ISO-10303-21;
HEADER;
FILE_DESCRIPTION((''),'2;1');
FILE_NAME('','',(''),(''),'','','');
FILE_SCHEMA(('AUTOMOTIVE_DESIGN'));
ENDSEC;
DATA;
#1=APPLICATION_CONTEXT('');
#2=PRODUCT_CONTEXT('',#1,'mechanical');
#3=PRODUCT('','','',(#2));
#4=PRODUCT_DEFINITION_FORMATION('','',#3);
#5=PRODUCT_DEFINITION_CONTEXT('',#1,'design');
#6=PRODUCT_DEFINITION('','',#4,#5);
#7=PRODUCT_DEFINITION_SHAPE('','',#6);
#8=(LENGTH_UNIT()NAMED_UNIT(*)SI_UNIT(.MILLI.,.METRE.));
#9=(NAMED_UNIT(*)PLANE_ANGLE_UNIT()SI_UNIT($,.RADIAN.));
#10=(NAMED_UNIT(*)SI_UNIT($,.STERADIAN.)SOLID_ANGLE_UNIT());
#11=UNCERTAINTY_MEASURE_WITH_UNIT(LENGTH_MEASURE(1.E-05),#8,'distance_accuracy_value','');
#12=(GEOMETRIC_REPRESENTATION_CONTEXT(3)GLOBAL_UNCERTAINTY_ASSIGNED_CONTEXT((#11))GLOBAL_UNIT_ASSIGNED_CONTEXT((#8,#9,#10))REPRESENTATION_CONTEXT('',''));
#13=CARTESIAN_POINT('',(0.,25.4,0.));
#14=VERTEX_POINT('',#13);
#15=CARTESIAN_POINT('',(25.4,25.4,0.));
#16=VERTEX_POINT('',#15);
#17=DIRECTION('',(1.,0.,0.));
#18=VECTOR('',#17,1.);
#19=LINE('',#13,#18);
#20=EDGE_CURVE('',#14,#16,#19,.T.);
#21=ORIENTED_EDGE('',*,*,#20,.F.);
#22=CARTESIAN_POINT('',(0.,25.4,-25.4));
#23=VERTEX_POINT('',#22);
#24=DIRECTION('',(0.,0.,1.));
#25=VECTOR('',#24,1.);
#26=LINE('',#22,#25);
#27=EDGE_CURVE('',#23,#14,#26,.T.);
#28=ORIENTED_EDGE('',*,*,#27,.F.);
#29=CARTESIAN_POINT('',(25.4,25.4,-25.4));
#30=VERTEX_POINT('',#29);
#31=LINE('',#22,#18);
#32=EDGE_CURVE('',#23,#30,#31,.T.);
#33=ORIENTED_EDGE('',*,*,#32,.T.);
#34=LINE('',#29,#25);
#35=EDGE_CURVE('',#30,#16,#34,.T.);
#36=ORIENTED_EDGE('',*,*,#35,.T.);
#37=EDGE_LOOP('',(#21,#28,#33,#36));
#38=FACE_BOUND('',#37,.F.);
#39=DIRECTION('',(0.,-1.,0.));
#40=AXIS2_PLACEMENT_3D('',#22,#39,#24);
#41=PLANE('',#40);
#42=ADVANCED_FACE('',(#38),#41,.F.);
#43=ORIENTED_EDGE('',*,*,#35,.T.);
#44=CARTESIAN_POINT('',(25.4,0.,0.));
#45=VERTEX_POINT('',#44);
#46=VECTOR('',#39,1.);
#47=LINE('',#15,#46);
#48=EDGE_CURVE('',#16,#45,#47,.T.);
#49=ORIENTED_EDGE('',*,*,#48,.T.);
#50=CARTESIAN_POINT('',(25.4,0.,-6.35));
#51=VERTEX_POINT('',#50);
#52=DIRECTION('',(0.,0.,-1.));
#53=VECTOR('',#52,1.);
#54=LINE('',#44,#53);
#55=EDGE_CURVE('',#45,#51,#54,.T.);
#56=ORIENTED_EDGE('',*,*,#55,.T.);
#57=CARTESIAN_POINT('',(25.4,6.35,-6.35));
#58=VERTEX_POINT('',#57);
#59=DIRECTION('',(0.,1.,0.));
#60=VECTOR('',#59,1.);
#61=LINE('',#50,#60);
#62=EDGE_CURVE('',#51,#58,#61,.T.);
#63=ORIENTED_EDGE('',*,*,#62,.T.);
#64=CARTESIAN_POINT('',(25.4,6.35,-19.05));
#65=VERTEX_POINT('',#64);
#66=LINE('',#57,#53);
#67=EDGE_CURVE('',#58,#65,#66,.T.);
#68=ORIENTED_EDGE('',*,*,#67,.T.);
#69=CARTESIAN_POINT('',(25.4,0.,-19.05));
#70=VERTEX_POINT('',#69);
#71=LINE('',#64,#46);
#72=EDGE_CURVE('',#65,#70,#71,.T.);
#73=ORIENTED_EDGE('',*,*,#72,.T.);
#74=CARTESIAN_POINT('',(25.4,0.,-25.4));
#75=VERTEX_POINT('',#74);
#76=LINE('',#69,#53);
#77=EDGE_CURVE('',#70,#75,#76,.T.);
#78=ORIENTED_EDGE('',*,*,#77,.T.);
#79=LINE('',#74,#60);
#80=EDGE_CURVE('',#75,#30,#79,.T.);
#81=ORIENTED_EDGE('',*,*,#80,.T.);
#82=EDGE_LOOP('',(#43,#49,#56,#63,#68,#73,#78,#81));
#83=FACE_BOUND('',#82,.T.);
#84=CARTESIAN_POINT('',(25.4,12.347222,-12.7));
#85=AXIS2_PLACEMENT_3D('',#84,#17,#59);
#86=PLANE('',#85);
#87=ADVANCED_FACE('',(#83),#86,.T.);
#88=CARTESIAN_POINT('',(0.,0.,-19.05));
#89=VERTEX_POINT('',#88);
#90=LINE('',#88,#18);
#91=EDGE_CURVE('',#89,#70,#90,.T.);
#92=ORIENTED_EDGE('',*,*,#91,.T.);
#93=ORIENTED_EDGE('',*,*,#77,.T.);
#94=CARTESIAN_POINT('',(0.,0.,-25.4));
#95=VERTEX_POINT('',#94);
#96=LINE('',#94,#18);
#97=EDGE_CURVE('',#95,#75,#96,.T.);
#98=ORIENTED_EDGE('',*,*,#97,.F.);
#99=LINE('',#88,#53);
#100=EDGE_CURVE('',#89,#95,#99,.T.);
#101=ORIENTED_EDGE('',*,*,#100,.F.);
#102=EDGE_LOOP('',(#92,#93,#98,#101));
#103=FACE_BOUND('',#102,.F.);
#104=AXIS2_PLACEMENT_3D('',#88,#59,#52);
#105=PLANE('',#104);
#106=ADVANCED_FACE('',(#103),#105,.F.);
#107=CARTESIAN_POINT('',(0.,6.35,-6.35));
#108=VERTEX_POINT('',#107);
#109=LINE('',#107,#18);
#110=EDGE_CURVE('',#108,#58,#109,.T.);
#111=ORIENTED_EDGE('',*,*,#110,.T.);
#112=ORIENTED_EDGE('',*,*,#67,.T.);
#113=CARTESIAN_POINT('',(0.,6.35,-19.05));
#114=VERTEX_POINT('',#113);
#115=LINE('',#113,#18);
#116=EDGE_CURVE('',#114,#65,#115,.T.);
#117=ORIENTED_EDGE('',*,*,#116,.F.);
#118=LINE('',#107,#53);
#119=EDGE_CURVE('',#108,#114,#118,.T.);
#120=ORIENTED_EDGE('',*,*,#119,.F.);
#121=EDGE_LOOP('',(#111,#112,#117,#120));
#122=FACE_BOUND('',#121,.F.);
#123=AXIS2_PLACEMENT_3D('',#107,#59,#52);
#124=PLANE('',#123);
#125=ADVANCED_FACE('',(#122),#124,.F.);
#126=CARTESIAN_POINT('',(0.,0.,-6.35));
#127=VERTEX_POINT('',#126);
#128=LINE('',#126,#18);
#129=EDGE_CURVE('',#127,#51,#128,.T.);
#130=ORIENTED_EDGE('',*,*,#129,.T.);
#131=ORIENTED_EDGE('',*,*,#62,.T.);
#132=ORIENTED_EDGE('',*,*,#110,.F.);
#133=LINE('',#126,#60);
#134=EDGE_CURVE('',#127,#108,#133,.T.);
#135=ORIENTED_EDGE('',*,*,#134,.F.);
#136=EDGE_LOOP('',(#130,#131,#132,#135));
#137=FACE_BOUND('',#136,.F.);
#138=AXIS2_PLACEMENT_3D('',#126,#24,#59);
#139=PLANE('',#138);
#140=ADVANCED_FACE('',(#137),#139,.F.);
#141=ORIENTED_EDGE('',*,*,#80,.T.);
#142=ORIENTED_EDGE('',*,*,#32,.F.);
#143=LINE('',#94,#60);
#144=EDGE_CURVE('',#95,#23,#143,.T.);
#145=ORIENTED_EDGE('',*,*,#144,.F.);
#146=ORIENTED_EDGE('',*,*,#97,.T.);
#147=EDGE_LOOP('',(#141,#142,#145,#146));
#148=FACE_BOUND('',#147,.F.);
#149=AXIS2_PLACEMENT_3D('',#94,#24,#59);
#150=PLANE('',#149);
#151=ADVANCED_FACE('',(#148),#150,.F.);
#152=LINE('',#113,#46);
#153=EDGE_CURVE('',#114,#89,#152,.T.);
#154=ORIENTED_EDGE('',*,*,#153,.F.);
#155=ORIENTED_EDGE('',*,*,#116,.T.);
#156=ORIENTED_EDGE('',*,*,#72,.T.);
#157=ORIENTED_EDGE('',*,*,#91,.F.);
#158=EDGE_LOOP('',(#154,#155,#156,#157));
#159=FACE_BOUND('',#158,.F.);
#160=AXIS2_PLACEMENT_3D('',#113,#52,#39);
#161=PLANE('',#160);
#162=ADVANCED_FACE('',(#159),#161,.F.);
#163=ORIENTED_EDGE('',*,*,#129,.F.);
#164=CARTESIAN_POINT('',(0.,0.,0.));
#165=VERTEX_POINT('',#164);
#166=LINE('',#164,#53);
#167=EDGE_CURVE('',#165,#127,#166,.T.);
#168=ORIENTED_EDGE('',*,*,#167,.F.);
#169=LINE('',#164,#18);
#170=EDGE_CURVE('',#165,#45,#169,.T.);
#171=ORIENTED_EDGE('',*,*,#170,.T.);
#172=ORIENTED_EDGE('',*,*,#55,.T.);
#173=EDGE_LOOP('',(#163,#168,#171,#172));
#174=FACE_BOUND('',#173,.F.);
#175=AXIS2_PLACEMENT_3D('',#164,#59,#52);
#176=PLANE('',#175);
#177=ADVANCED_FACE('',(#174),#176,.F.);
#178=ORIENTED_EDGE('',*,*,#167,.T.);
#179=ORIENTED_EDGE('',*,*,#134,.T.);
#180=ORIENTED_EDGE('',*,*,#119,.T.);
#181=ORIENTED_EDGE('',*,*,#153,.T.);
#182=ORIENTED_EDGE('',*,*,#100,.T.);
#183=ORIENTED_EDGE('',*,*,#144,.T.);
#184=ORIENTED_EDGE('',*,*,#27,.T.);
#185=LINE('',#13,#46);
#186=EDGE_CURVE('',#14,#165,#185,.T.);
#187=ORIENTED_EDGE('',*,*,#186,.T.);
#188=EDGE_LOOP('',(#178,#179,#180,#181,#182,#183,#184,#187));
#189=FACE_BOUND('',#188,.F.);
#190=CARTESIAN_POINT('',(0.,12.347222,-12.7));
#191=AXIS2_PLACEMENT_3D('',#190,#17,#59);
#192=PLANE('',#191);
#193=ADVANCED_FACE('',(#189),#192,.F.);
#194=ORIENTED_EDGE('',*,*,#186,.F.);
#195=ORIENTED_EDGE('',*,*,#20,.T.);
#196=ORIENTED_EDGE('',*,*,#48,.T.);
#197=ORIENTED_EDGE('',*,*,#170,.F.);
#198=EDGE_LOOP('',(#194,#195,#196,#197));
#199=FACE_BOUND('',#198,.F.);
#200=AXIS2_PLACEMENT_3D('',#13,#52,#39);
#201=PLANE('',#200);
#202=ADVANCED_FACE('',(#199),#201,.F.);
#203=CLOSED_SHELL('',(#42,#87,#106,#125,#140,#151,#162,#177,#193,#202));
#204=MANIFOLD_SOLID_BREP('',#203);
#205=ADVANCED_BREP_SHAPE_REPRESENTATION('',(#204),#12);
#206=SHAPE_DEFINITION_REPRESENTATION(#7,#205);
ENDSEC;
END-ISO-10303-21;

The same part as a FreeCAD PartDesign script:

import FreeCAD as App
import Part
import Sketcher
Q = App.Units.Quantity

doc = App.newDocument("Part")
params = doc.addObject("Spreadsheet::Sheet", "Params")
for row, (alias, value) in enumerate([
    ("sketch1_width", "1 in"),
    ("sketch1_height", "0.5 in"),
    ("pad1_length", "1 in"),
], start=1):
    params.set(f"A{row}", alias)
    params.set(f"B{row}", "=" + value)
    params.setAlias(f"B{row}", alias)

body = doc.addObject("PartDesign::Body", "Body")

sketch1 = body.newObject("Sketcher::SketchObject", "Sketch")
sketch1.AttachmentSupport = (doc.getObject("YZ_Plane"), [""])
sketch1.MapMode = "FlatFace"
sketch1.addGeometry(Part.LineSegment(App.Vector(25, 0, 0), App.Vector(0, 0, 0)), False)
sketch1.addGeometry(Part.LineSegment(App.Vector(0, 0, 0), App.Vector(0, -6, 0)), False)
sketch1.addGeometry(Part.LineSegment(App.Vector(0, -6, 0), App.Vector(6, -6, 0)), False)
sketch1.addGeometry(Part.LineSegment(App.Vector(6, -6, 0), App.Vector(6, -19, 0)), False)
sketch1.addGeometry(Part.LineSegment(App.Vector(6, -19, 0), App.Vector(0, -19, 0)), False)
sketch1.addGeometry(Part.LineSegment(App.Vector(0, -19, 0), App.Vector(0, -25, 0)), False)
sketch1.addGeometry(Part.LineSegment(App.Vector(0, -25, 0), App.Vector(25, -25, 0)), False)
sketch1.addGeometry(Part.LineSegment(App.Vector(25, -25, 0), App.Vector(25, 0, 0)), False)
sketch1.addConstraint(Sketcher.Constraint("Coincident", 0, 2, 1, 1))
sketch1.addConstraint(Sketcher.Constraint("Coincident", 1, 2, 2, 1))
sketch1.addConstraint(Sketcher.Constraint("Coincident", 2, 2, 3, 1))
sketch1.addConstraint(Sketcher.Constraint("Coincident", 3, 2, 4, 1))
sketch1.addConstraint(Sketcher.Constraint("Coincident", 4, 2, 5, 1))
sketch1.addConstraint(Sketcher.Constraint("Coincident", 5, 2, 6, 1))
sketch1.addConstraint(Sketcher.Constraint("Coincident", 6, 2, 7, 1))
sketch1.addConstraint(Sketcher.Constraint("Coincident", 7, 2, 0, 1))
sketch1.addConstraint(Sketcher.Constraint("Horizontal", 0))
sketch1.addConstraint(Sketcher.Constraint("Vertical", 1))
sketch1.addConstraint(Sketcher.Constraint("Horizontal", 2))
sketch1.addConstraint(Sketcher.Constraint("Vertical", 3))
sketch1.addConstraint(Sketcher.Constraint("Horizontal", 4))
sketch1.addConstraint(Sketcher.Constraint("Vertical", 5))
sketch1.addConstraint(Sketcher.Constraint("Horizontal", 6))
sketch1.addConstraint(Sketcher.Constraint("Vertical", 7))
sketch1.addConstraint(Sketcher.Constraint("Coincident", 0, 2, -1, 1))
sketch1.addConstraint(Sketcher.Constraint("PointOnObject", 4, 2, -2))
sketch1.addConstraint(Sketcher.Constraint("Equal", 4, 1))
sketch1.addConstraint(Sketcher.Constraint("Equal", 1, 5))
sketch1.addConstraint(Sketcher.Constraint("Equal", 6, 7))
sketch1.addConstraint(Sketcher.Constraint("DistanceX", 0, 2, 0, 1, Q("1 in")))
sketch1.addConstraint(Sketcher.Constraint("DistanceY", 3, 2, 3, 1, Q("0.5 in")))
sketch1.setExpression("Constraints[21]", "Params.sketch1_width")
sketch1.setExpression("Constraints[22]", "Params.sketch1_height")
pad1 = body.newObject("PartDesign::Pad", "Pad")
pad1.Profile = sketch1
pad1.setExpression("Length", "Params.pad1_length")

doc.recompute()
